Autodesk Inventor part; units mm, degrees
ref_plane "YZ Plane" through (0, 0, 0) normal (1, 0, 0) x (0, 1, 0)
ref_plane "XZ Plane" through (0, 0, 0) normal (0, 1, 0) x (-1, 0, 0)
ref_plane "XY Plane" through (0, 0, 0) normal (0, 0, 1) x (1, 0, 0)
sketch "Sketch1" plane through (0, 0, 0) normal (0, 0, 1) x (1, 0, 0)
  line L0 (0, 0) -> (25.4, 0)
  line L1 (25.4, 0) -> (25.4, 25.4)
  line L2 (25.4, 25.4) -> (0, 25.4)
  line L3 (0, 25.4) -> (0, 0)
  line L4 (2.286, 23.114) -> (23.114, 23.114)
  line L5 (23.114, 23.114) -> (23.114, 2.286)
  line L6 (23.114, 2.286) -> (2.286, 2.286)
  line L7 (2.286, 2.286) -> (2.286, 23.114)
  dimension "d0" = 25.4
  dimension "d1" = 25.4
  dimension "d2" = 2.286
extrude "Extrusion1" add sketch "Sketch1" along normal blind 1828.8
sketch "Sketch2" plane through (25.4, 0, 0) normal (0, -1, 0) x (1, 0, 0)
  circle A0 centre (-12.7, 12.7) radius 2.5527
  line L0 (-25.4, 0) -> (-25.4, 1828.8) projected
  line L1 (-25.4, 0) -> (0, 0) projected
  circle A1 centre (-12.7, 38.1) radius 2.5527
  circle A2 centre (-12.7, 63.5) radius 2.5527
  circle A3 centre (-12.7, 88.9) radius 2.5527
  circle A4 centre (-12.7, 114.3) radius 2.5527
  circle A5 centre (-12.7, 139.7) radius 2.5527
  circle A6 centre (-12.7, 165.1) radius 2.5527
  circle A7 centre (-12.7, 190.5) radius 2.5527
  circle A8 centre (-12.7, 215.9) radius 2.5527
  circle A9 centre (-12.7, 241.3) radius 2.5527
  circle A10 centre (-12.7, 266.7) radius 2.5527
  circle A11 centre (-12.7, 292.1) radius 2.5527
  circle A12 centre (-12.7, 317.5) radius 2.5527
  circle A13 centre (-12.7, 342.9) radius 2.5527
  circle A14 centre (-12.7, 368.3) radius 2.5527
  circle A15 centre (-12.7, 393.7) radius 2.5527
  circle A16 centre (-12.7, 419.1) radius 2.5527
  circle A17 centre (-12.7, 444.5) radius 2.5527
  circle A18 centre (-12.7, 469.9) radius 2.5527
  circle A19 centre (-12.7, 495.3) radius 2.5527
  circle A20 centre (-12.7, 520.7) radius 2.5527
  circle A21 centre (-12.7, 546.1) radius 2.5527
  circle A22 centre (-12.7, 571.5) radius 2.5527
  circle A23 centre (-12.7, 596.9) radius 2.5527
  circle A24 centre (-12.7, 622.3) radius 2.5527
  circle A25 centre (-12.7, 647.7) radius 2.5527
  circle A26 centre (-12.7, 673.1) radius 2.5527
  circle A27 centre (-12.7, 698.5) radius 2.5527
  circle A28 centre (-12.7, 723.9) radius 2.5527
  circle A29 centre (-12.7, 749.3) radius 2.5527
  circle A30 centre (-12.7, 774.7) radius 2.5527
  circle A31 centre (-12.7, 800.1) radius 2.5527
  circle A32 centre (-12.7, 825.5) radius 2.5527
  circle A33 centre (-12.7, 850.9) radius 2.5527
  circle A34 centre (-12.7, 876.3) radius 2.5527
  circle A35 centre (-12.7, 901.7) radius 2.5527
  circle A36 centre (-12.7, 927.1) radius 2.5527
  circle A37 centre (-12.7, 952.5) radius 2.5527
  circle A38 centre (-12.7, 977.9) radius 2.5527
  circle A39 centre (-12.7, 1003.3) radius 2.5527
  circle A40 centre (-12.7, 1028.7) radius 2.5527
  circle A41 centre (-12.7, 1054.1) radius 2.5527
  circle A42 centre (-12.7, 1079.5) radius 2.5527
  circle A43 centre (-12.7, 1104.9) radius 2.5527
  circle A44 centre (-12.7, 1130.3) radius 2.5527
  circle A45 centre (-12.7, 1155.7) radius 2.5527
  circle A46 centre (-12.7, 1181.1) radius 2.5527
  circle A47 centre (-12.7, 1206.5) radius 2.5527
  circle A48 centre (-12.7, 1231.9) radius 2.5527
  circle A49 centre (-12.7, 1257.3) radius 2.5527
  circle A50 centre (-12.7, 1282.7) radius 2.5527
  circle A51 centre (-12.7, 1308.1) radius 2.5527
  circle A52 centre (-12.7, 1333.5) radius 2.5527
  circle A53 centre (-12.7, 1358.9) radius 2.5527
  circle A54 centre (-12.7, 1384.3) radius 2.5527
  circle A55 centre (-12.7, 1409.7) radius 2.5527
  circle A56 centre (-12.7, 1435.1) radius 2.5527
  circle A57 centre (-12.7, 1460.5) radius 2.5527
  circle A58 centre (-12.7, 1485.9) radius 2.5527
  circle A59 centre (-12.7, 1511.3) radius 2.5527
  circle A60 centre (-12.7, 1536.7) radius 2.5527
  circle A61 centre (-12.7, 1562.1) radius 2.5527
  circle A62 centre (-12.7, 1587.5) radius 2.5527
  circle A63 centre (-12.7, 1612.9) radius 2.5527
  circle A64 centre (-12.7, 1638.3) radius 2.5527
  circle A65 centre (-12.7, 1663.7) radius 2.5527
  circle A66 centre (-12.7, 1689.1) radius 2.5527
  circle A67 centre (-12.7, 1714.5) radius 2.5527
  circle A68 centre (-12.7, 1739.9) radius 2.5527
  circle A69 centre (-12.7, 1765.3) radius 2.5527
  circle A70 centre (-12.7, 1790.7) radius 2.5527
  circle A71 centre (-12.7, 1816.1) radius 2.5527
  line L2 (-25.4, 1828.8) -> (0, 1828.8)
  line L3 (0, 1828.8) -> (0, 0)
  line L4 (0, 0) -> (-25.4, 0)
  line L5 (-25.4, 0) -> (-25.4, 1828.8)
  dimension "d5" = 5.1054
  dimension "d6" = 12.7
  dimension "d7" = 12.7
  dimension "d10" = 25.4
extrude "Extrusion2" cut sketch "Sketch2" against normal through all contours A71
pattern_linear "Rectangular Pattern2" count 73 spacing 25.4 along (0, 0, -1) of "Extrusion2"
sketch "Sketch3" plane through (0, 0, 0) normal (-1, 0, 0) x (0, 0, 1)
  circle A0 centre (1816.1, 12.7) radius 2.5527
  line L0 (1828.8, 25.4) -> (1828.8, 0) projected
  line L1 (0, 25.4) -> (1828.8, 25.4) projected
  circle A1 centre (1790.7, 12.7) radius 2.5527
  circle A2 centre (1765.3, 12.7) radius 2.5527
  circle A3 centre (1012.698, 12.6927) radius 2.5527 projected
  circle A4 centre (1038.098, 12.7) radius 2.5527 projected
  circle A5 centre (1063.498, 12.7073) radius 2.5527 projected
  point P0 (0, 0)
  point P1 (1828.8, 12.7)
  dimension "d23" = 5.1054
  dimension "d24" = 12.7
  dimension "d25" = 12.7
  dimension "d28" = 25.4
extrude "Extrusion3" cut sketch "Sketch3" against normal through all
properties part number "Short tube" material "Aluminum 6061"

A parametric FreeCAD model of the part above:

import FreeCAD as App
import Part
import Sketcher
from FreeCAD import Vector
Q = App.Units.Quantity

doc = App.newDocument("Part")
params = doc.addObject("Spreadsheet::Sheet", "Params")
for row, (alias, value) in enumerate([
    ("sketch1_width", "1 in"),
    ("pad1_length", "72 in"),
    ("sketch2_diameter", "0.201 in"),
    ("linearpattern_pitch", "1 in"),
    ("sketch3_diameter", "0.201 in"),
], start=1):
    params.set(f"A{row}", alias)
    params.set(f"B{row}", "=" + value)
    params.setAlias(f"B{row}", alias)

body = doc.addObject("PartDesign::Body", "Body")

# Sketch on XY plane
sketch1 = doc.addObject("Sketcher::SketchObject", "Sketch")
body.addObject(sketch1)
sketch1.AttachmentSupport = (doc.XY_Plane, [""])
sketch1.MapMode = "FlatFace"
sketch1.addGeometry(Part.LineSegment(Vector(0, 25, 0), Vector(0, 0, 0)), False)
sketch1.addGeometry(Part.LineSegment(Vector(0, 0, 0), Vector(25, 0, 0)), False)
sketch1.addGeometry(Part.LineSegment(Vector(25, 0, 0), Vector(25, 25, 0)), False)
sketch1.addGeometry(Part.LineSegment(Vector(25, 25, 0), Vector(0, 25, 0)), False)
sketch1.addGeometry(Part.LineSegment(Vector(2, 2, 0), Vector(2, 23, 0)), False)
sketch1.addGeometry(Part.LineSegment(Vector(2, 23, 0), Vector(23, 23, 0)), False)
sketch1.addGeometry(Part.LineSegment(Vector(23, 23, 0), Vector(23, 2, 0)), False)
sketch1.addGeometry(Part.LineSegment(Vector(23, 2, 0), Vector(2, 2, 0)), False)
sketch1.addConstraint(Sketcher.Constraint("Coincident", 0, 2, 1, 1))
sketch1.addConstraint(Sketcher.Constraint("Coincident", 1, 2, 2, 1))
sketch1.addConstraint(Sketcher.Constraint("Coincident", 2, 2, 3, 1))
sketch1.addConstraint(Sketcher.Constraint("Coincident", 3, 2, 0, 1))
sketch1.addConstraint(Sketcher.Constraint("Coincident", 4, 2, 5, 1))
sketch1.addConstraint(Sketcher.Constraint("Coincident", 5, 2, 6, 1))
sketch1.addConstraint(Sketcher.Constraint("Coincident", 6, 2, 7, 1))
sketch1.addConstraint(Sketcher.Constraint("Coincident", 7, 2, 4, 1))
sketch1.addConstraint(Sketcher.Constraint("Vertical", 0))
sketch1.addConstraint(Sketcher.Constraint("Horizontal", 1))
sketch1.addConstraint(Sketcher.Constraint("Vertical", 2))
sketch1.addConstraint(Sketcher.Constraint("Horizontal", 3))
sketch1.addConstraint(Sketcher.Constraint("Vertical", 4))
sketch1.addConstraint(Sketcher.Constraint("Horizontal", 5))
sketch1.addConstraint(Sketcher.Constraint("Vertical", 6))
sketch1.addConstraint(Sketcher.Constraint("Horizontal", 7))
sketch1.addConstraint(Sketcher.Constraint("Coincident", 0, 2, -1, 1))
sketch1.addConstraint(Sketcher.Constraint("Equal", 3, 0))
sketch1.addConstraint(Sketcher.Constraint("Equal", 7, 4))
sketch1.addConstraint(Sketcher.Constraint("DistanceX", 1, 1, 1, 2, Q("1 in")))
sketch1.addConstraint(Sketcher.Constraint("DistanceX", -1, 1, 4, 2, Q("0.09 in")))
sketch1.addConstraint(Sketcher.Constraint("DistanceY", -1, 1, 6, 2, Q("0.09 in")))
sketch1.addConstraint(Sketcher.Constraint("DistanceY", 4, 2, 3, 2, Q("0.09 in")))
sketch1.setExpression("Constraints[19]", "Params.sketch1_width")
pad1 = doc.addObject("PartDesign::Pad", "Pad")
body.addObject(pad1)
pad1.Profile = sketch1
pad1.setExpression("Length", "Params.pad1_length")

# Sketch on XZ plane
sketch2 = doc.addObject("Sketcher::SketchObject", "Sketch001")
body.addObject(sketch2)
sketch2.AttachmentSupport = (doc.XZ_Plane, [""])
sketch2.MapMode = "FlatFace"
sketch2.addGeometry(Part.Circle(Vector(12.7, 1816.1, 0), Vector(0, 0, 1), 2.6), False)
sketch2.addConstraint(Sketcher.Constraint("Diameter", 0, Q("0.201 in")))
sketch2.addConstraint(Sketcher.Constraint("DistanceX", -1, 1, 0, 3, Q("0.5 in")))
sketch2.addConstraint(Sketcher.Constraint("DistanceY", -1, 1, 0, 3, Q("71.5 in")))
sketch2.setExpression("Constraints[0]", "Params.sketch2_diameter")
pocket1 = doc.addObject("PartDesign::Pocket", "Pocket")
body.addObject(pocket1)
pocket1.Profile = sketch2
pocket1.Type = "ThroughAll"
doc.recompute()

linearpattern = doc.addObject("PartDesign::LinearPattern", "LinearPattern")
body.addObject(linearpattern)
linearpattern.Originals = [pocket1]
linearpattern.Direction = (doc.Z_Axis, [""])
linearpattern.Mode = "offset"
linearpattern.setExpression("Offset", "Params.linearpattern_pitch")
linearpattern.Occurrences = 73
linearpattern.Reversed = True
body.Tip = linearpattern

# Sketch on YZ plane
sketch3 = doc.addObject("Sketcher::SketchObject", "Sketch002")
body.addObject(sketch3)
sketch3.AttachmentSupport = (doc.YZ_Plane, [""])
sketch3.MapMode = "FlatFace"
sketch3.addGeometry(Part.Circle(Vector(12.7, 1816.1, 0), Vector(0, 0, 1), 2.6), False)
sketch3.addGeometry(Part.Circle(Vector(12.7, 1790.7, 0), Vector(0, 0, 1), 2.6), False)
sketch3.addGeometry(Part.Circle(Vector(12.7, 1765.3, 0), Vector(0, 0, 1), 2.6), False)
sketch3.addGeometry(Part.Circle(Vector(12.7, 1012.7, 0), Vector(0, 0, 1), 2.6), False)
sketch3.addGeometry(Part.Circle(Vector(12.7, 1038.1, 0), Vector(0, 0, 1), 2.6), False)
sketch3.addGeometry(Part.Circle(Vector(12.7, 1063.5, 0), Vector(0, 0, 1), 2.6), False)
sketch3.addConstraint(Sketcher.Constraint("Equal", 0, 1))
sketch3.addConstraint(Sketcher.Constraint("Equal", 1, 2))
sketch3.addConstraint(Sketcher.Constraint("Equal", 2, 3))
sketch3.addConstraint(Sketcher.Constraint("Equal", 3, 4))
sketch3.addConstraint(Sketcher.Constraint("Equal", 4, 5))
sketch3.addConstraint(Sketcher.Constraint("Vertical", 0, 3, 1, 3))
sketch3.addConstraint(Sketcher.Constraint("Vertical", 1, 3, 2, 3))
sketch3.addConstraint(Sketcher.Constraint("Vertical", 2, 3, 4, 3))
sketch3.addConstraint(Sketcher.Constraint("Diameter", 0, Q("0.201 in")))
sketch3.addConstraint(Sketcher.Constraint("DistanceY", 1, 3, 0, 3, Q("1 in")))
sketch3.addConstraint(Sketcher.Constraint("DistanceY", 2, 3, 1, 3, Q("1 in")))
sketch3.addConstraint(Sketcher.Constraint("DistanceY", 3, 3, 4, 3, Q("1 in")))
sketch3.addConstraint(Sketcher.Constraint("DistanceY", 4, 3, 5, 3, Q("1 in")))
sketch3.addConstraint(Sketcher.Constraint("DistanceX", -1, 1, 0, 3, Q("0.5 in")))
sketch3.addConstraint(Sketcher.Constraint("DistanceY", -1, 1, 0, 3, Q("71.5 in")))
sketch3.addConstraint(Sketcher.Constraint("DistanceY", -1, 1, 3, 3, Q("39.87 in")))
sketch3.addConstraint(Sketcher.Constraint("DistanceX", -1, 1, 3, 3, Q("12.6927 mm")))
sketch3.addConstraint(Sketcher.Constraint("DistanceX", -1, 1, 5, 3, Q("12.7073 mm")))
sketch3.setExpression("Constraints[8]", "Params.sketch3_diameter")
pocket2 = doc.addObject("PartDesign::Pocket", "Pocket001")
body.addObject(pocket2)
pocket2.Profile = sketch3
pocket2.Type = "ThroughAll"
pocket2.Reversed = True

doc.recompute()
